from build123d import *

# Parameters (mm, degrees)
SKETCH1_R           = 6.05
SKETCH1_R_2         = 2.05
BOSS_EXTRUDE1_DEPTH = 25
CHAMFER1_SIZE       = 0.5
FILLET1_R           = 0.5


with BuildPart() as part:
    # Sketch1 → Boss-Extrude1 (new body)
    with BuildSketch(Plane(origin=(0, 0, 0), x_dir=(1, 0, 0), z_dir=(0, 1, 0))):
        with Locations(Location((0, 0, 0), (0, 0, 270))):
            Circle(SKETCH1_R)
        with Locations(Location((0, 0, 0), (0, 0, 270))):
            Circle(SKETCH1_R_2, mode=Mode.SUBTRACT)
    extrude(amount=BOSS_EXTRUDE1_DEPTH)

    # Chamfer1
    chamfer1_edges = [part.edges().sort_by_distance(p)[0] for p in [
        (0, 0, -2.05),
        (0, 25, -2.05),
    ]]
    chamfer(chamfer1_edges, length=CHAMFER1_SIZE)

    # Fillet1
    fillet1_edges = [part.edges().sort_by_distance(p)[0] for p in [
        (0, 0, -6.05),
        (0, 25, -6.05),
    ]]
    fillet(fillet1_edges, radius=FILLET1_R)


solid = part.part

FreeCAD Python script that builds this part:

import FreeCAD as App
import Part
import Sketcher
Q = App.Units.Quantity


def edges_at(feature, points):
    """Names of the edges that pass closest to the given points."""
    edges = feature.Shape.Edges
    near = lambda p: min(range(len(edges)), key=lambda i: edges[i].distToShape(Part.Vertex(*p))[0])
    return sorted({f"Edge{near(p) + 1}" for p in points})

doc = App.newDocument("Part")
body = doc.addObject("PartDesign::Body", "Body")

sketch1 = doc.addObject("Sketcher::SketchObject", "Sketch")
body.addObject(sketch1)
sketch1.AttachmentSupport = (doc.XZ_Plane, [""])
sketch1.MapMode = "FlatFace"
sketch1.addGeometry([
    Part.Circle(App.Vector(0, 0, 0), App.Vector(0, 0, 1), 6),
    Part.Circle(App.Vector(0, 0, 0), App.Vector(0, 0, 1), 2),
], False)
sketch1.addConstraint([
    Sketcher.Constraint("Coincident", 0, 3, -1, 1),
    Sketcher.Constraint("Coincident", 1, 3, -1, 1),
    Sketcher.Constraint("Diameter", 0, Q("12.1 mm")),
    Sketcher.Constraint("Diameter", 1, Q("4.1 mm")),
])
pad1 = doc.addObject("PartDesign::Pad", "Pad")
body.addObject(pad1)
pad1.Profile = sketch1
pad1.Length = 25
pad1.Reversed = True
doc.recompute()

chamfer = doc.addObject("PartDesign::Chamfer", "Chamfer")
body.addObject(chamfer)
chamfer.Base = (pad1, edges_at(pad1, [(0, 0, -2.05), (0, 25, -2.05)]))
chamfer.Size = 0.5
doc.recompute()

fillet = doc.addObject("PartDesign::Fillet", "Fillet")
body.addObject(fillet)
fillet.Base = (chamfer, edges_at(chamfer, [(0, 0, -6.05), (0, 25, -6.05)]))
fillet.Radius = 0.5

doc.recompute()
